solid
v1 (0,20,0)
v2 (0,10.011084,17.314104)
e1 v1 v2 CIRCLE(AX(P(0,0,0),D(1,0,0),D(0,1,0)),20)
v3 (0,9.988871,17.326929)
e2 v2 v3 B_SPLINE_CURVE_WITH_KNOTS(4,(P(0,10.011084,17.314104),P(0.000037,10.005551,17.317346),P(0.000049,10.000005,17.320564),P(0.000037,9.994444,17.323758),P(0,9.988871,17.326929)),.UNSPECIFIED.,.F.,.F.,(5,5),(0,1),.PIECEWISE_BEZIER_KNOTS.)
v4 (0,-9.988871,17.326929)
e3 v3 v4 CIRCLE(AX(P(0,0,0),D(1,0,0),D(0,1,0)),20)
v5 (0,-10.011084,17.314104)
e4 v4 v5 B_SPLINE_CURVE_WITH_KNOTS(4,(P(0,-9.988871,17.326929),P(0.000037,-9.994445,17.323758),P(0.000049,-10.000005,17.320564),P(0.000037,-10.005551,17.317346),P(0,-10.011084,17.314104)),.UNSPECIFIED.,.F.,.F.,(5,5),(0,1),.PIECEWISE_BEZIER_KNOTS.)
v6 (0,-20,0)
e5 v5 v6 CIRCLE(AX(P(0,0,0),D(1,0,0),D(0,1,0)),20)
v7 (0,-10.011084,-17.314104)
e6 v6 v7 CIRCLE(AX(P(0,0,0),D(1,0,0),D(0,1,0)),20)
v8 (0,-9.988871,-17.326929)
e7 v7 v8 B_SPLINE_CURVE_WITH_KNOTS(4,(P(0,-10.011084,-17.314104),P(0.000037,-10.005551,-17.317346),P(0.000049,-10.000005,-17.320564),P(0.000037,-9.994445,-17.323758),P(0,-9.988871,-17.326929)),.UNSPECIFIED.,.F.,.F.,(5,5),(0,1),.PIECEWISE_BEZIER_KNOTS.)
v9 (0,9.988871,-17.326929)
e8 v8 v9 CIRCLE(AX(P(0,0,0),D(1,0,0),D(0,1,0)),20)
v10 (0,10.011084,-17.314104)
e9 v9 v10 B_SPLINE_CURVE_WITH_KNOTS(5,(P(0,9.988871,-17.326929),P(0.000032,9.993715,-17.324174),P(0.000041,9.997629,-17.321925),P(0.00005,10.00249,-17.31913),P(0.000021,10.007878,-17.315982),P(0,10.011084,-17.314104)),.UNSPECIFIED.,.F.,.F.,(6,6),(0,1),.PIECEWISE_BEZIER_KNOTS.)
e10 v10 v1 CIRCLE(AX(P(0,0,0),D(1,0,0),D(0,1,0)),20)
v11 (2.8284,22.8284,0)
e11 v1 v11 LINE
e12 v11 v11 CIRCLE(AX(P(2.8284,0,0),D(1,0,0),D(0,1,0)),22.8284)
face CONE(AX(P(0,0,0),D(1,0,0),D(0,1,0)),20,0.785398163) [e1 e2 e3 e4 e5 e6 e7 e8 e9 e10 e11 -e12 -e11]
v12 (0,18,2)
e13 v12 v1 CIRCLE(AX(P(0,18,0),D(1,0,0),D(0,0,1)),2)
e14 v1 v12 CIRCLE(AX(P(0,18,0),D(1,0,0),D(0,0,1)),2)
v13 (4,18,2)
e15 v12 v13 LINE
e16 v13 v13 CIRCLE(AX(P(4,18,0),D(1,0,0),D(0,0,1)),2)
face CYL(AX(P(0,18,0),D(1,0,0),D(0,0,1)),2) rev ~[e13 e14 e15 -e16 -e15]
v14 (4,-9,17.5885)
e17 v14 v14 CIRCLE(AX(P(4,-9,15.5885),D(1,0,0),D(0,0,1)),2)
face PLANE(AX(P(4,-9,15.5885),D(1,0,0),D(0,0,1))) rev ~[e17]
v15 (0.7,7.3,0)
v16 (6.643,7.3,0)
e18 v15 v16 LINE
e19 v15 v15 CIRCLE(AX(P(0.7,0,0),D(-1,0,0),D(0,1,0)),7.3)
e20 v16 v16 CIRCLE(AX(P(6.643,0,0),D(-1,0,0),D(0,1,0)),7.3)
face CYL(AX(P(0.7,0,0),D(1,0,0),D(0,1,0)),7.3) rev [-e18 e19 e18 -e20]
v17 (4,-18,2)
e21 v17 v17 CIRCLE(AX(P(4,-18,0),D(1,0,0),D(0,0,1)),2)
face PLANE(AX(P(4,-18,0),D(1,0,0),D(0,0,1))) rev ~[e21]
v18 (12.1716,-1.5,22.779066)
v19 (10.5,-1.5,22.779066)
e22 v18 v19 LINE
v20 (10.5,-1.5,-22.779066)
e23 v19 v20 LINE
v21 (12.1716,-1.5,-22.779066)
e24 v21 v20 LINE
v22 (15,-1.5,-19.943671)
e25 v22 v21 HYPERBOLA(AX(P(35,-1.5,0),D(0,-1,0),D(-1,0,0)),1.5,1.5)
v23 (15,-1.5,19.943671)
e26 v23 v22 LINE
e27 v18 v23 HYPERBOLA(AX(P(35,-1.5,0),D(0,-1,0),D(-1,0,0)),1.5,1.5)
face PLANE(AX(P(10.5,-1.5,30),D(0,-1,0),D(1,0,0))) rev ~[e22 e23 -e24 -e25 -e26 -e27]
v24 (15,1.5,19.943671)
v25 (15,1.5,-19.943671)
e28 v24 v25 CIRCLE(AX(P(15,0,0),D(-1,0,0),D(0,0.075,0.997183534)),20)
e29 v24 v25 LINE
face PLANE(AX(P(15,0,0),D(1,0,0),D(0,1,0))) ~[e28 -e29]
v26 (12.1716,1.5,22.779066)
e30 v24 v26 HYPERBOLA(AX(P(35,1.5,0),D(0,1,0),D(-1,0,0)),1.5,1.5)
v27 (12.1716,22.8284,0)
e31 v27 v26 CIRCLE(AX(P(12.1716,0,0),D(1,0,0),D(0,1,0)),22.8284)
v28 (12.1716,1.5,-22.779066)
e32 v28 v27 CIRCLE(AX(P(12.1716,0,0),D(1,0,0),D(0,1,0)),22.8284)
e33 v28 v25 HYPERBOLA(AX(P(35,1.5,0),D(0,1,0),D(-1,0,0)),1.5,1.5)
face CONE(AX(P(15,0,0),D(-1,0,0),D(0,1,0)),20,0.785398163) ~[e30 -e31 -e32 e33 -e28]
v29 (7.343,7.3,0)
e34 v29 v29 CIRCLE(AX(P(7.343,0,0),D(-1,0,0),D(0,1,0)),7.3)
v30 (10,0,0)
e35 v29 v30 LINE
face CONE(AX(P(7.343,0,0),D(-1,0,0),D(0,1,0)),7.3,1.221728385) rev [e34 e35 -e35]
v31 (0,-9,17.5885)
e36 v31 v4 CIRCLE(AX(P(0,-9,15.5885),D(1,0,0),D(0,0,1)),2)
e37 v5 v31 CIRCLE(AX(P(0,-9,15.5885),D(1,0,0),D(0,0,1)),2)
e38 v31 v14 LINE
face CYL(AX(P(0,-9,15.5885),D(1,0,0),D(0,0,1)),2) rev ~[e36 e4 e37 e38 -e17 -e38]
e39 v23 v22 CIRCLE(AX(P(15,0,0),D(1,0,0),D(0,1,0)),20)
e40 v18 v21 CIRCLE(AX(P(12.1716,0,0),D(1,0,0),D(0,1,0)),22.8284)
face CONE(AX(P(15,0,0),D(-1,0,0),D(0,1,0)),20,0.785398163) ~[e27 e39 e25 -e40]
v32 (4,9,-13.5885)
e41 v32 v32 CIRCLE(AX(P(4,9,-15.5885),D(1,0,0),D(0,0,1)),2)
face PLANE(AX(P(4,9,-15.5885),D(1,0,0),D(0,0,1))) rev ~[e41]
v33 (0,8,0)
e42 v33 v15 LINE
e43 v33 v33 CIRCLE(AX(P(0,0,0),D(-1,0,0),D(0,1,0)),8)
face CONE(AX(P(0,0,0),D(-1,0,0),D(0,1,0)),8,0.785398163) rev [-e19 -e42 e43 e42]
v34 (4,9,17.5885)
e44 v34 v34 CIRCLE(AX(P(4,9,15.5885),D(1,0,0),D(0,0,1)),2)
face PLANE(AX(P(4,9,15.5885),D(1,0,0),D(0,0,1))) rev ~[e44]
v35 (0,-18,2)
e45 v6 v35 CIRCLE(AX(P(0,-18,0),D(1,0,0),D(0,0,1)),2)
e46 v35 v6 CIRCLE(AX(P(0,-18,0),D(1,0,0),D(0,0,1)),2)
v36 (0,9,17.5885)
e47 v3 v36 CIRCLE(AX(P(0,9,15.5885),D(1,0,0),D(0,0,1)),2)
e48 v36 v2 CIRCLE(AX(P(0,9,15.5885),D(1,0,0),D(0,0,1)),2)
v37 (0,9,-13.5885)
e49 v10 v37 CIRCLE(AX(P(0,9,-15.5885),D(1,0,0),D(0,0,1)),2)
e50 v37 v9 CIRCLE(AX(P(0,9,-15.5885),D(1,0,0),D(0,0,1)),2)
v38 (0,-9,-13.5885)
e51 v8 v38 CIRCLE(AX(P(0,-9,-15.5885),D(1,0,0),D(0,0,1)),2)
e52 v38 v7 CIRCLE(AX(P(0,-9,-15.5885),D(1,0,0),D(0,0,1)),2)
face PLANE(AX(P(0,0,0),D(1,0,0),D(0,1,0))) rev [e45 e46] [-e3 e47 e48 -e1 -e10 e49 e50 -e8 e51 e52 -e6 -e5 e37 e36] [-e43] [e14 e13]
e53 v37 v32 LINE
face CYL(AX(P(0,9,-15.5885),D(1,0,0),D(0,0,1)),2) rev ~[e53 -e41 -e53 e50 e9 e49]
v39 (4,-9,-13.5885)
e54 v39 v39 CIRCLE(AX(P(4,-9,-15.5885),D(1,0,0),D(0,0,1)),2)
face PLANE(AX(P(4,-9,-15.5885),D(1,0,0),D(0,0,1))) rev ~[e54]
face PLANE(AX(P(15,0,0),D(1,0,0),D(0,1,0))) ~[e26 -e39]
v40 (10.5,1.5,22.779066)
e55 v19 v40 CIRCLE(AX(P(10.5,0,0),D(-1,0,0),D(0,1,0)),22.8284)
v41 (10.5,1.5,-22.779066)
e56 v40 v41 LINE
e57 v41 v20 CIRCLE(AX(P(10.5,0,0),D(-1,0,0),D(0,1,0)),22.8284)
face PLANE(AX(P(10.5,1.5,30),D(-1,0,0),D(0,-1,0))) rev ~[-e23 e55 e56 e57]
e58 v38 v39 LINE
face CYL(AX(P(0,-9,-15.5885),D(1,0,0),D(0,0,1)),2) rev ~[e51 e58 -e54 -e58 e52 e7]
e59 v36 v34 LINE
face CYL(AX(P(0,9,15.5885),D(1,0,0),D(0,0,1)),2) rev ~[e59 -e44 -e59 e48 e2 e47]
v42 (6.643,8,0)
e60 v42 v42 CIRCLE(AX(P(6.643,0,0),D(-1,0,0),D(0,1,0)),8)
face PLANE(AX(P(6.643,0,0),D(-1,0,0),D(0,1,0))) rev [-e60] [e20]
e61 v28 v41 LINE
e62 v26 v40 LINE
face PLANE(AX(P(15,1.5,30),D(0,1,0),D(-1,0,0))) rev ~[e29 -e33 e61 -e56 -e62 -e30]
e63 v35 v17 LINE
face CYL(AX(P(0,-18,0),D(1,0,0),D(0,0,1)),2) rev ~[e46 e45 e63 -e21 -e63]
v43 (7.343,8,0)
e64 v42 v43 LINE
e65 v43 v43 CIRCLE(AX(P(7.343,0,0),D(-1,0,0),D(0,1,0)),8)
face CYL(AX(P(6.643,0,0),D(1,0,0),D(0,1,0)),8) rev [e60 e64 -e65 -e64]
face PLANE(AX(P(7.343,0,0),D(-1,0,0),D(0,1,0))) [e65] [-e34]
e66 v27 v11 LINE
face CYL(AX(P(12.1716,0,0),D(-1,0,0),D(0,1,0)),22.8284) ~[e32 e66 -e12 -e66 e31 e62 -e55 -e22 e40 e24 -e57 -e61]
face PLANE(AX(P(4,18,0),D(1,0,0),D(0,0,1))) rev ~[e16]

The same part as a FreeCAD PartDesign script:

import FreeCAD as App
import Part
import Sketcher
from FreeCAD import Vector
Q = App.Units.Quantity

doc = App.newDocument("Part")
body = doc.addObject("PartDesign::Body", "Body")

# Sketch on XY plane
sketch1 = body.newObject("Sketcher::SketchObject", "Sketch")
sketch1.AttachmentSupport = (doc.getObject("XY_Plane"), [""])
sketch1.MapMode = "FlatFace"
sketch1.addGeometry([
    Part.LineSegment(Vector(0, 20, 0), Vector(0, 0, 0)),  # 0
    Part.LineSegment(Vector(0, 0, 0), Vector(15, 0, 0)),  # 1
    Part.LineSegment(Vector(15, 0, 0), Vector(15, 20, 0)),  # 2
    Part.LineSegment(Vector(15, 20, 0), Vector(12.2, 22.8, 0)),  # 3
    Part.LineSegment(Vector(12.2, 22.8, 0), Vector(2.8, 22.8, 0)),  # 4
    Part.LineSegment(Vector(2.8, 22.8, 0), Vector(0, 20, 0)),  # 5
], False)
sketch1.addConstraint([
    Sketcher.Constraint("Coincident", 0, 2, 1, 1),
    Sketcher.Constraint("Coincident", 1, 2, 2, 1),
    Sketcher.Constraint("Coincident", 2, 2, 3, 1),
    Sketcher.Constraint("Coincident", 3, 2, 4, 1),
    Sketcher.Constraint("Coincident", 4, 2, 5, 1),
    Sketcher.Constraint("Coincident", 5, 2, 0, 1),
    Sketcher.Constraint("Vertical", 0),
    Sketcher.Constraint("Horizontal", 1),
    Sketcher.Constraint("Vertical", 2),
    Sketcher.Constraint("Horizontal", 4),
    Sketcher.Constraint("Coincident", 0, 2, -1, 1),
    Sketcher.Constraint("Perpendicular", 3, 5),
    Sketcher.Constraint("Horizontal", 2, 2, 5, 2),
    Sketcher.Constraint("Equal", 3, 5),
    Sketcher.Constraint("DistanceX", 1, 1, 1, 2, Q("15 mm")),
    Sketcher.Constraint("DistanceY", 0, 2, 0, 1, Q("20 mm")),
    Sketcher.Constraint("Distance", 3, Q("4 mm")),
])
revolution = body.newObject("PartDesign::Revolution", "Revolution")
revolution.Profile = sketch1
revolution.ReferenceAxis = (sketch1, ["H_Axis"])
revolution.Angle = 360

# Sketch on YZ plane
sketch2 = body.newObject("Sketcher::SketchObject", "Sketch001")
sketch2.AttachmentSupport = (doc.getObject("YZ_Plane"), [""])
sketch2.MapMode = "FlatFace"
sketch2.addGeometry([
    Part.Circle(Vector(18, 0, 0), Vector(0, 0, 1), 2),  # 0
    Part.Circle(Vector(9, -15.6, 0), Vector(0, 0, 1), 2),  # 1
    Part.Circle(Vector(-9, -15.6, 0), Vector(0, 0, 1), 2),  # 2
    Part.Circle(Vector(-18, 0, 0), Vector(0, 0, 1), 2),  # 3
    Part.Circle(Vector(-9, 15.6, 0), Vector(0, 0, 1), 2),  # 4
    Part.Circle(Vector(9, 15.6, 0), Vector(0, 0, 1), 2),  # 5
], False)
sketch2.addConstraint([
    Sketcher.Constraint("Equal", 0, 1),
    Sketcher.Constraint("Equal", 1, 2),
    Sketcher.Constraint("Equal", 2, 3),
    Sketcher.Constraint("Equal", 3, 4),
    Sketcher.Constraint("Equal", 4, 5),
    Sketcher.Constraint("Symmetric", 0, 3, 3, 3, -1, 1),
    Sketcher.Constraint("Symmetric", 1, 3, 4, 3, -1, 1),
    Sketcher.Constraint("Symmetric", 2, 3, 5, 3, -1, 1),
    Sketcher.Constraint("Symmetric", 1, 3, 2, 3, -2),
    Sketcher.Constraint("PointOnObject", 0, 3, -1),
    Sketcher.Constraint("Diameter", 0, Q("4 mm")),
    Sketcher.Constraint("DistanceX", -1, 1, 0, 3, Q("18 mm")),
    Sketcher.Constraint("DistanceX", -1, 1, 1, 3, Q("9 mm")),
    Sketcher.Constraint("DistanceY", 2, 3, 4, 3, Q("31.177 mm")),
])
doc.recompute()
hole = body.newObject("PartDesign::Hole", "Hole")
hole.Profile = sketch2
hole.ThreadType = "None"
hole.Diameter = 4
hole.DepthType = "Dimension"
hole.Depth = 4
hole.DrillPoint = "Flat"
hole.Reversed = True

# Sketch on XY plane
sketch3 = body.newObject("Sketcher::SketchObject", "Sketch002")
sketch3.AttachmentSupport = (doc.getObject("XY_Plane"), [""])
sketch3.MapMode = "FlatFace"
sketch3.addGeometry([
    Part.LineSegment(Vector(0, 8, 0), Vector(0, 0, 0)),  # 0
    Part.LineSegment(Vector(0, 0, 0), Vector(10, 0, 0)),  # 1
    Part.LineSegment(Vector(10, 0, 0), Vector(7.3, 7.3, 0)),  # 2
    Part.LineSegment(Vector(7.3, 7.3, 0), Vector(7.3, 8, 0)),  # 3
    Part.LineSegment(Vector(7.3, 8, 0), Vector(6.6, 8, 0)),  # 4
    Part.LineSegment(Vector(6.6, 8, 0), Vector(6.6, 7.3, 0)),  # 5
    Part.LineSegment(Vector(6.6, 7.3, 0), Vector(0.7, 7.3, 0)),  # 6
    Part.LineSegment(Vector(0.7, 7.3, 0), Vector(0, 8, 0)),  # 7
], False)
sketch3.addConstraint([
    Sketcher.Constraint("Coincident", 0, 2, 1, 1),
    Sketcher.Constraint("Coincident", 1, 2, 2, 1),
    Sketcher.Constraint("Coincident", 2, 2, 3, 1),
    Sketcher.Constraint("Coincident", 3, 2, 4, 1),
    Sketcher.Constraint("Coincident", 4, 2, 5, 1),
    Sketcher.Constraint("Coincident", 5, 2, 6, 1),
    Sketcher.Constraint("Coincident", 6, 2, 7, 1),
    Sketcher.Constraint("Coincident", 7, 2, 0, 1),
    Sketcher.Constraint("Vertical", 0),
    Sketcher.Constraint("Horizontal", 1),
    Sketcher.Constraint("Vertical", 3),
    Sketcher.Constraint("Horizontal", 4),
    Sketcher.Constraint("Vertical", 5),
    Sketcher.Constraint("Horizontal", 6),
    Sketcher.Constraint("Coincident", 0, 2, -1, 1),
    Sketcher.Constraint("Horizontal", 2, 2, 5, 2),
    Sketcher.Constraint("Horizontal", 4, 2, 7, 2),
    Sketcher.Constraint("Equal", 4, 3),
    Sketcher.Constraint("DistanceX", 1, 1, 1, 2, Q("10 mm")),
    Sketcher.Constraint("DistanceY", 0, 2, 0, 1, Q("8 mm")),
    Sketcher.Constraint("DistanceX", 4, 2, 4, 1, Q("0.7 mm")),
    Sketcher.Constraint("DistanceX", -1, 1, 6, 2, Q("0.7 mm")),
    Sketcher.Constraint("Angle", 2, Q("110 deg")),
])
groove = body.newObject("PartDesign::Groove", "Groove")
groove.Profile = sketch3
groove.ReferenceAxis = (sketch3, ["H_Axis"])
groove.Angle = 360

# Sketch on XY plane
sketch4 = body.newObject("Sketcher::SketchObject", "Sketch003")
sketch4.AttachmentSupport = (doc.getObject("XY_Plane"), [""])
sketch4.MapMode = "FlatFace"
sketch4.AttachmentOffset = App.Placement(Vector(0, 0, 30), App.Rotation())
sketch4.addGeometry([
    Part.LineSegment(Vector(15, -1.5, 0), Vector(15, 1.5, 0)),
    Part.LineSegment(Vector(15, 1.5, 0), Vector(10.5, 1.5, 0)),
    Part.LineSegment(Vector(10.5, 1.5, 0), Vector(10.5, -1.5, 0)),
    Part.LineSegment(Vector(10.5, -1.5, 0), Vector(15, -1.5, 0)),
], False)
sketch4.addConstraint([
    Sketcher.Constraint("Coincident", 0, 2, 1, 1),
    Sketcher.Constraint("Coincident", 1, 2, 2, 1),
    Sketcher.Constraint("Coincident", 2, 2, 3, 1),
    Sketcher.Constraint("Coincident", 3, 2, 0, 1),
    Sketcher.Constraint("Vertical", 0),
    Sketcher.Constraint("Horizontal", 1),
    Sketcher.Constraint("Vertical", 2),
    Sketcher.Constraint("Horizontal", 3),
    Sketcher.Constraint("DistanceY", 0, 1, 0, 2, Q("3 mm")),
    Sketcher.Constraint("DistanceX", 1, 2, 1, 1, Q("4.5 mm")),
    Sketcher.Constraint("DistanceX", -1, 1, 0, 2, Q("15 mm")),
    Sketcher.Constraint("DistanceY", -1, 1, 0, 2, Q("1.5 mm")),
])
pocket1 = body.newObject("PartDesign::Pocket", "Pocket")
pocket1.Profile = sketch4
pocket1.Type = "ThroughAll"

doc.recompute()
